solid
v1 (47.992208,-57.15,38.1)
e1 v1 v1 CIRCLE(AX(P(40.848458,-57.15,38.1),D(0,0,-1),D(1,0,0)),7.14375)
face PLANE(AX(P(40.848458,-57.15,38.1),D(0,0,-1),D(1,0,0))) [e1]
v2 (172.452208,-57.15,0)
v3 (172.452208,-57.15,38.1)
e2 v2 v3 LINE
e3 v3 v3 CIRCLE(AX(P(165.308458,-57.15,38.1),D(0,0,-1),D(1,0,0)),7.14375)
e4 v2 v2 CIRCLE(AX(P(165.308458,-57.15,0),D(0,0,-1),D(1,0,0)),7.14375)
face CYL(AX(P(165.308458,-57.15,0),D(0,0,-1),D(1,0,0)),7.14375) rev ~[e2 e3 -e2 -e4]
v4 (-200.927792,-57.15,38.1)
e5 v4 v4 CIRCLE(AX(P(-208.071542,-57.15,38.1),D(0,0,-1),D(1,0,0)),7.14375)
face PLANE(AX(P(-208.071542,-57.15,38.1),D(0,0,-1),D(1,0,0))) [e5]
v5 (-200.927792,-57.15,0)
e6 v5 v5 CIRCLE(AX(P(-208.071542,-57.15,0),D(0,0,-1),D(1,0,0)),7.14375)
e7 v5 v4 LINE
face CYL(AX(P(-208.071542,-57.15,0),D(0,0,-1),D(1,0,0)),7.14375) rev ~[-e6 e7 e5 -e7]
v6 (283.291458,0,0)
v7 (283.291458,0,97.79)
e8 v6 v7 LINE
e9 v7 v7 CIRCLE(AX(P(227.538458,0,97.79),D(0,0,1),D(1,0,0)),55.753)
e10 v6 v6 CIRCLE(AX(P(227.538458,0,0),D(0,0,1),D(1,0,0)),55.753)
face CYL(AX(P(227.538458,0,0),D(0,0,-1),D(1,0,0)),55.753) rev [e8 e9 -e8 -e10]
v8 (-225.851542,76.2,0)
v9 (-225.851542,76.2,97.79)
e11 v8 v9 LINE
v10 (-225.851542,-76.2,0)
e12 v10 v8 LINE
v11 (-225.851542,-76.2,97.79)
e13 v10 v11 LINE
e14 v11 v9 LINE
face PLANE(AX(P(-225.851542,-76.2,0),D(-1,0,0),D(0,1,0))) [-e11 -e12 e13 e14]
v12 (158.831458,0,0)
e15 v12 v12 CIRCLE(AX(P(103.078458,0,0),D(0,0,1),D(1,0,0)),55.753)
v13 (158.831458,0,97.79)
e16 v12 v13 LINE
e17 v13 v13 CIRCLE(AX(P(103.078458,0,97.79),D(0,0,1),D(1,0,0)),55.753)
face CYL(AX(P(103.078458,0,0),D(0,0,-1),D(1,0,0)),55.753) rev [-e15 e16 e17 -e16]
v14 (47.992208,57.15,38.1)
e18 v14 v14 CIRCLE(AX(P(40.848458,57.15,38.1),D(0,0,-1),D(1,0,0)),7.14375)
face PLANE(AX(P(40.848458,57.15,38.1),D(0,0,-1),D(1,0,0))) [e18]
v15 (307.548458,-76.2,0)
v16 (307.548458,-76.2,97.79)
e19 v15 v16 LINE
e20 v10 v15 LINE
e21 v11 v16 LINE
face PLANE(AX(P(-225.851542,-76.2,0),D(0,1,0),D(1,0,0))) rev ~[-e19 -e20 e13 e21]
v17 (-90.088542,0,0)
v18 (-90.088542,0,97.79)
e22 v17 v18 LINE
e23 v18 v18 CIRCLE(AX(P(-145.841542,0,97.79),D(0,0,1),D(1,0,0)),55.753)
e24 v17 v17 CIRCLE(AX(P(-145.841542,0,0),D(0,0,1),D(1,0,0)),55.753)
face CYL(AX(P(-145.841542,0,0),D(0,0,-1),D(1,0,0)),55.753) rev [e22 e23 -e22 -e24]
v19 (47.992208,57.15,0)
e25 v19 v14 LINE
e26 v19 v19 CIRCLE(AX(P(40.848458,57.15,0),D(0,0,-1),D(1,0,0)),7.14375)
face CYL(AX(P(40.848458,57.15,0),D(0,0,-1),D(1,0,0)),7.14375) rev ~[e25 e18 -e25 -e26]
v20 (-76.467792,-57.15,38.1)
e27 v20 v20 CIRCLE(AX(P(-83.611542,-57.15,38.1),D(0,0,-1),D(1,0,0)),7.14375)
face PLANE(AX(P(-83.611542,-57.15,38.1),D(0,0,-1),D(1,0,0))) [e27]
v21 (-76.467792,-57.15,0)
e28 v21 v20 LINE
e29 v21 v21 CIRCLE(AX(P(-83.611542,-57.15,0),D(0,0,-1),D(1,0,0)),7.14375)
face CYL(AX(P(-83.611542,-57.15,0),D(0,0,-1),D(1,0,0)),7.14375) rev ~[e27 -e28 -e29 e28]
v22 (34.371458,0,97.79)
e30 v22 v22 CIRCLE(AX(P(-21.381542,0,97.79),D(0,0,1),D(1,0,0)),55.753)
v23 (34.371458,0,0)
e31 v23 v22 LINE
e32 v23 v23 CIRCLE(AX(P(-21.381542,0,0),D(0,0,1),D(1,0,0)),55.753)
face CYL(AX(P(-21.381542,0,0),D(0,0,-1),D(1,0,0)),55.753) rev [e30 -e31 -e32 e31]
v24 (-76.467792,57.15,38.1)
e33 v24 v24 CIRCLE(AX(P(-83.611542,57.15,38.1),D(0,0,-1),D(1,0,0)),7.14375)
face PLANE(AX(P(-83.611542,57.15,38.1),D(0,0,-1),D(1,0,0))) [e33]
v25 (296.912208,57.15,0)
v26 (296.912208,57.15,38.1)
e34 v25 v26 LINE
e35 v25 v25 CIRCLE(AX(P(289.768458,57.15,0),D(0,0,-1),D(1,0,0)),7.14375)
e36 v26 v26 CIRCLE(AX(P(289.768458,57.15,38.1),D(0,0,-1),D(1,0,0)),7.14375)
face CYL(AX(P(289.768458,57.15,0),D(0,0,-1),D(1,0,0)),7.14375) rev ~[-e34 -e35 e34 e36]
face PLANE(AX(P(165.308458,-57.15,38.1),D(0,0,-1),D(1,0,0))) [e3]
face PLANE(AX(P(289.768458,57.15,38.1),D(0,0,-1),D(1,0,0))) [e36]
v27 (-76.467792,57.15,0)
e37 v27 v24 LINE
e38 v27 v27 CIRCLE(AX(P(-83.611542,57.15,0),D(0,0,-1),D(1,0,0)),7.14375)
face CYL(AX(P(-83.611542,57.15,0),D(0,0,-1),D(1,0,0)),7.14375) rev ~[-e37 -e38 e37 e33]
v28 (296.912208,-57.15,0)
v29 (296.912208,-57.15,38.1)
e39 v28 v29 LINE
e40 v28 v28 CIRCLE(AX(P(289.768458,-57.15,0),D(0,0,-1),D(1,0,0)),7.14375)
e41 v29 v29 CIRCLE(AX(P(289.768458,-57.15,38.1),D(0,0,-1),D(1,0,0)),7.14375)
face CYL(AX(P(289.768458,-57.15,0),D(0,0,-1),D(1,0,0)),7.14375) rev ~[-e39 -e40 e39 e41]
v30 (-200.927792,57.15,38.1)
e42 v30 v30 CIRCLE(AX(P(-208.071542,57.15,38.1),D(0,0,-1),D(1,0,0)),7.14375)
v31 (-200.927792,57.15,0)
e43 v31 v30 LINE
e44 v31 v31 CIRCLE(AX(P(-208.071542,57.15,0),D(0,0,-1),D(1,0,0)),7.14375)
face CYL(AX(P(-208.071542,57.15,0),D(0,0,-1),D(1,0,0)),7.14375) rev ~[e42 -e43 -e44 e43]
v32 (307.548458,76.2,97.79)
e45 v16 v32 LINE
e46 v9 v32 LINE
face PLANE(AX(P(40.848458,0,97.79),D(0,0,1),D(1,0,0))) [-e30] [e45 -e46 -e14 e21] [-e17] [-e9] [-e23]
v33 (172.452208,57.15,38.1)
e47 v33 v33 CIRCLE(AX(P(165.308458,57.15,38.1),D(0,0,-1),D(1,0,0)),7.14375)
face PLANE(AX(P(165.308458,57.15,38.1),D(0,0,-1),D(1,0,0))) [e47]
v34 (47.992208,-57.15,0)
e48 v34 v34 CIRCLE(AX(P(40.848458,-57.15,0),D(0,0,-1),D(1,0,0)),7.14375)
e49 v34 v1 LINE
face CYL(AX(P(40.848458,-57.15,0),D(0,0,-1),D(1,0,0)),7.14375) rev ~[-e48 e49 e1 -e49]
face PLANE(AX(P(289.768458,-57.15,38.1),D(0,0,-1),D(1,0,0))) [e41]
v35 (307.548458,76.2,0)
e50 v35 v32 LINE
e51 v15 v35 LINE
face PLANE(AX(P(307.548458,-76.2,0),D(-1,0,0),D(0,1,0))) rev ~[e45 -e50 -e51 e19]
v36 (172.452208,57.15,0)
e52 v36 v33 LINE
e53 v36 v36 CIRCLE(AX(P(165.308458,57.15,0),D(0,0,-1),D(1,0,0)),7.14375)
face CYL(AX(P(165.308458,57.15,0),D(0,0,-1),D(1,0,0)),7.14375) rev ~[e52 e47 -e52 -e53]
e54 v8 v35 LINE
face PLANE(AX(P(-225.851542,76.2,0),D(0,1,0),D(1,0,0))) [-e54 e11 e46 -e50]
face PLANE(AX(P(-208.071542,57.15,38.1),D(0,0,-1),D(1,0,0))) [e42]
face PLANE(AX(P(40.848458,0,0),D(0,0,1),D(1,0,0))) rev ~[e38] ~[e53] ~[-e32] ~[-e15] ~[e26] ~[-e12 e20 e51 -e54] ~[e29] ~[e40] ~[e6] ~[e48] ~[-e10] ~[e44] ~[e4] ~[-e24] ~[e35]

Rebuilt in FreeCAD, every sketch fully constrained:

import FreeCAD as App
import Part
import Sketcher
from FreeCAD import Vector
Q = App.Units.Quantity


def add_polygon(sketch, points):
    """Adds a closed chain of lines whose ends are joined by coincident constraints."""
    first, n = sketch.GeometryCount, len(points)
    for a, b in zip(points, points[1:] + points[:1]):
        sketch.addGeometry(Part.LineSegment(App.Vector(*a, 0), App.Vector(*b, 0)), False)
    for i in range(n):
        sketch.addConstraint(Sketcher.Constraint("Coincident", first + i, 2, first + (i + 1) % n, 1))

doc = App.newDocument("Part")
body = doc.addObject("PartDesign::Body", "Body")

sketch1 = doc.addObject("Sketcher::SketchObject", "Sketch")
body.addObject(sketch1)
sketch1.AttachmentSupport = (doc.XY_Plane, [""])
sketch1.MapMode = "FlatFace"
add_polygon(sketch1, [(-225.851542, 76.2), (-225.851542, -76.2), (307.548458, -76.2), (307.548458, 76.2)])
sketch1.addGeometry(Part.Circle(Vector(-145.841542, 0, 0), Vector(0, 0, 1), 55.753), False)
sketch1.addGeometry(Part.Circle(Vector(-21.381542, 0, 0), Vector(0, 0, 1), 55.753), False)
sketch1.addGeometry(Part.Circle(Vector(103.078458, 0, 0), Vector(0, 0, 1), 55.753), False)
sketch1.addGeometry(Part.Circle(Vector(227.538458, 0, 0), Vector(0, 0, 1), 55.753), False)
sketch1.addConstraint([
    Sketcher.Constraint("Vertical", 0),
    Sketcher.Constraint("Horizontal", 1),
    Sketcher.Constraint("Vertical", 2),
    Sketcher.Constraint("Horizontal", 3),
    Sketcher.Constraint("Equal", 4, 5),
    Sketcher.Constraint("Equal", 5, 6),
    Sketcher.Constraint("Equal", 6, 7),
    Sketcher.Constraint("PointOnObject", 4, 3, -1),
    Sketcher.Constraint("PointOnObject", 5, 3, -1),
    Sketcher.Constraint("PointOnObject", 6, 3, -1),
    Sketcher.Constraint("PointOnObject", 7, 3, -1),
    Sketcher.Constraint("Diameter", 4, Q("4.39 in")),
    Sketcher.Constraint("DistanceX", 1, 1, 1, 2, Q("21 in")),
    Sketcher.Constraint("DistanceY", 0, 2, 0, 1, Q("6 in")),
    Sketcher.Constraint("DistanceY", 0, 2, -1, 1, Q("3 in")),
    Sketcher.Constraint("DistanceX", 4, 3, 5, 3, Q("4.9 in")),
    Sketcher.Constraint("DistanceX", 5, 3, 6, 3, Q("4.9 in")),
    Sketcher.Constraint("DistanceX", 6, 3, 7, 3, Q("4.9 in")),
    Sketcher.Constraint("DistanceX", 0, 2, 4, 3, Q("3.15 in")),
    Sketcher.Constraint("DistanceX", 4, 3, -1, 1, Q("145.841542 mm")),
])
pad1 = doc.addObject("PartDesign::Pad", "Pad")
body.addObject(pad1)
pad1.Profile = sketch1
pad1.Length = Q("3.85 in")

sketch2 = doc.addObject("Sketcher::SketchObject", "Sketch001")
body.addObject(sketch2)
sketch2.AttachmentSupport = (doc.XY_Plane, [""])
sketch2.MapMode = "FlatFace"
sketch2.addGeometry([
    Part.Circle(Vector(-208.071542, -57.15, 0), Vector(0, 0, 1), 7.14375),
    Part.Circle(Vector(-83.611542, -57.15, 0), Vector(0, 0, 1), 7.14375),
    Part.Circle(Vector(-208.071542, 57.15, 0), Vector(0, 0, 1), 7.14375),
    Part.Circle(Vector(-83.611542, 57.15, 0), Vector(0, 0, 1), 7.14375),
    Part.Circle(Vector(40.848458, -57.15, 0), Vector(0, 0, 1), 7.14375),
    Part.Circle(Vector(40.848458, 57.15, 0), Vector(0, 0, 1), 7.14375),
    Part.Circle(Vector(165.308458, 57.15, 0), Vector(0, 0, 1), 7.14375),
    Part.Circle(Vector(165.308458, -57.15, 0), Vector(0, 0, 1), 7.14375),
    Part.Circle(Vector(289.768458, -57.15, 0), Vector(0, 0, 1), 7.14375),
    Part.Circle(Vector(289.768458, 57.15, 0), Vector(0, 0, 1), 7.14375),
], False)
sketch2.addConstraint([
    Sketcher.Constraint("Equal", 0, 1),
    Sketcher.Constraint("Equal", 1, 2),
    Sketcher.Constraint("Equal", 2, 3),
    Sketcher.Constraint("Equal", 3, 4),
    Sketcher.Constraint("Equal", 4, 5),
    Sketcher.Constraint("Equal", 5, 6),
    Sketcher.Constraint("Equal", 6, 7),
    Sketcher.Constraint("Equal", 7, 8),
    Sketcher.Constraint("Equal", 8, 9),
    Sketcher.Constraint("Symmetric", 0, 3, 2, 3, -1),
    Sketcher.Constraint("Symmetric", 1, 3, 3, 3, -1),
    Sketcher.Constraint("Symmetric", 4, 3, 5, 3, -1),
    Sketcher.Constraint("Symmetric", 6, 3, 7, 3, -1),
    Sketcher.Constraint("Symmetric", 8, 3, 9, 3, -1),
    Sketcher.Constraint("Horizontal", 0, 3, 1, 3),
    Sketcher.Constraint("Horizontal", 1, 3, 4, 3),
    Sketcher.Constraint("Horizontal", 5, 3, 6, 3),
    Sketcher.Constraint("Horizontal", 7, 3, 8, 3),
    Sketcher.Constraint("Diameter", 0, Q("0.5625 in")),
    Sketcher.Constraint("DistanceX", 0, 3, 1, 3, Q("4.9 in")),
    Sketcher.Constraint("DistanceY", 0, 3, 2, 3, Q("4.5 in")),
    Sketcher.Constraint("DistanceX", 1, 3, 4, 3, Q("4.9 in")),
    Sketcher.Constraint("DistanceX", 5, 3, 6, 3, Q("4.9 in")),
    Sketcher.Constraint("DistanceX", 7, 3, 8, 3, Q("4.9 in")),
    Sketcher.Constraint("DistanceX", 0, 3, -1, 1, Q("208.071542 mm")),
])
pocket1 = doc.addObject("PartDesign::Pocket", "Pocket")
body.addObject(pocket1)
pocket1.Profile = sketch2
pocket1.Length = Q("1.5 in")
pocket1.Reversed = True

doc.recompute()
